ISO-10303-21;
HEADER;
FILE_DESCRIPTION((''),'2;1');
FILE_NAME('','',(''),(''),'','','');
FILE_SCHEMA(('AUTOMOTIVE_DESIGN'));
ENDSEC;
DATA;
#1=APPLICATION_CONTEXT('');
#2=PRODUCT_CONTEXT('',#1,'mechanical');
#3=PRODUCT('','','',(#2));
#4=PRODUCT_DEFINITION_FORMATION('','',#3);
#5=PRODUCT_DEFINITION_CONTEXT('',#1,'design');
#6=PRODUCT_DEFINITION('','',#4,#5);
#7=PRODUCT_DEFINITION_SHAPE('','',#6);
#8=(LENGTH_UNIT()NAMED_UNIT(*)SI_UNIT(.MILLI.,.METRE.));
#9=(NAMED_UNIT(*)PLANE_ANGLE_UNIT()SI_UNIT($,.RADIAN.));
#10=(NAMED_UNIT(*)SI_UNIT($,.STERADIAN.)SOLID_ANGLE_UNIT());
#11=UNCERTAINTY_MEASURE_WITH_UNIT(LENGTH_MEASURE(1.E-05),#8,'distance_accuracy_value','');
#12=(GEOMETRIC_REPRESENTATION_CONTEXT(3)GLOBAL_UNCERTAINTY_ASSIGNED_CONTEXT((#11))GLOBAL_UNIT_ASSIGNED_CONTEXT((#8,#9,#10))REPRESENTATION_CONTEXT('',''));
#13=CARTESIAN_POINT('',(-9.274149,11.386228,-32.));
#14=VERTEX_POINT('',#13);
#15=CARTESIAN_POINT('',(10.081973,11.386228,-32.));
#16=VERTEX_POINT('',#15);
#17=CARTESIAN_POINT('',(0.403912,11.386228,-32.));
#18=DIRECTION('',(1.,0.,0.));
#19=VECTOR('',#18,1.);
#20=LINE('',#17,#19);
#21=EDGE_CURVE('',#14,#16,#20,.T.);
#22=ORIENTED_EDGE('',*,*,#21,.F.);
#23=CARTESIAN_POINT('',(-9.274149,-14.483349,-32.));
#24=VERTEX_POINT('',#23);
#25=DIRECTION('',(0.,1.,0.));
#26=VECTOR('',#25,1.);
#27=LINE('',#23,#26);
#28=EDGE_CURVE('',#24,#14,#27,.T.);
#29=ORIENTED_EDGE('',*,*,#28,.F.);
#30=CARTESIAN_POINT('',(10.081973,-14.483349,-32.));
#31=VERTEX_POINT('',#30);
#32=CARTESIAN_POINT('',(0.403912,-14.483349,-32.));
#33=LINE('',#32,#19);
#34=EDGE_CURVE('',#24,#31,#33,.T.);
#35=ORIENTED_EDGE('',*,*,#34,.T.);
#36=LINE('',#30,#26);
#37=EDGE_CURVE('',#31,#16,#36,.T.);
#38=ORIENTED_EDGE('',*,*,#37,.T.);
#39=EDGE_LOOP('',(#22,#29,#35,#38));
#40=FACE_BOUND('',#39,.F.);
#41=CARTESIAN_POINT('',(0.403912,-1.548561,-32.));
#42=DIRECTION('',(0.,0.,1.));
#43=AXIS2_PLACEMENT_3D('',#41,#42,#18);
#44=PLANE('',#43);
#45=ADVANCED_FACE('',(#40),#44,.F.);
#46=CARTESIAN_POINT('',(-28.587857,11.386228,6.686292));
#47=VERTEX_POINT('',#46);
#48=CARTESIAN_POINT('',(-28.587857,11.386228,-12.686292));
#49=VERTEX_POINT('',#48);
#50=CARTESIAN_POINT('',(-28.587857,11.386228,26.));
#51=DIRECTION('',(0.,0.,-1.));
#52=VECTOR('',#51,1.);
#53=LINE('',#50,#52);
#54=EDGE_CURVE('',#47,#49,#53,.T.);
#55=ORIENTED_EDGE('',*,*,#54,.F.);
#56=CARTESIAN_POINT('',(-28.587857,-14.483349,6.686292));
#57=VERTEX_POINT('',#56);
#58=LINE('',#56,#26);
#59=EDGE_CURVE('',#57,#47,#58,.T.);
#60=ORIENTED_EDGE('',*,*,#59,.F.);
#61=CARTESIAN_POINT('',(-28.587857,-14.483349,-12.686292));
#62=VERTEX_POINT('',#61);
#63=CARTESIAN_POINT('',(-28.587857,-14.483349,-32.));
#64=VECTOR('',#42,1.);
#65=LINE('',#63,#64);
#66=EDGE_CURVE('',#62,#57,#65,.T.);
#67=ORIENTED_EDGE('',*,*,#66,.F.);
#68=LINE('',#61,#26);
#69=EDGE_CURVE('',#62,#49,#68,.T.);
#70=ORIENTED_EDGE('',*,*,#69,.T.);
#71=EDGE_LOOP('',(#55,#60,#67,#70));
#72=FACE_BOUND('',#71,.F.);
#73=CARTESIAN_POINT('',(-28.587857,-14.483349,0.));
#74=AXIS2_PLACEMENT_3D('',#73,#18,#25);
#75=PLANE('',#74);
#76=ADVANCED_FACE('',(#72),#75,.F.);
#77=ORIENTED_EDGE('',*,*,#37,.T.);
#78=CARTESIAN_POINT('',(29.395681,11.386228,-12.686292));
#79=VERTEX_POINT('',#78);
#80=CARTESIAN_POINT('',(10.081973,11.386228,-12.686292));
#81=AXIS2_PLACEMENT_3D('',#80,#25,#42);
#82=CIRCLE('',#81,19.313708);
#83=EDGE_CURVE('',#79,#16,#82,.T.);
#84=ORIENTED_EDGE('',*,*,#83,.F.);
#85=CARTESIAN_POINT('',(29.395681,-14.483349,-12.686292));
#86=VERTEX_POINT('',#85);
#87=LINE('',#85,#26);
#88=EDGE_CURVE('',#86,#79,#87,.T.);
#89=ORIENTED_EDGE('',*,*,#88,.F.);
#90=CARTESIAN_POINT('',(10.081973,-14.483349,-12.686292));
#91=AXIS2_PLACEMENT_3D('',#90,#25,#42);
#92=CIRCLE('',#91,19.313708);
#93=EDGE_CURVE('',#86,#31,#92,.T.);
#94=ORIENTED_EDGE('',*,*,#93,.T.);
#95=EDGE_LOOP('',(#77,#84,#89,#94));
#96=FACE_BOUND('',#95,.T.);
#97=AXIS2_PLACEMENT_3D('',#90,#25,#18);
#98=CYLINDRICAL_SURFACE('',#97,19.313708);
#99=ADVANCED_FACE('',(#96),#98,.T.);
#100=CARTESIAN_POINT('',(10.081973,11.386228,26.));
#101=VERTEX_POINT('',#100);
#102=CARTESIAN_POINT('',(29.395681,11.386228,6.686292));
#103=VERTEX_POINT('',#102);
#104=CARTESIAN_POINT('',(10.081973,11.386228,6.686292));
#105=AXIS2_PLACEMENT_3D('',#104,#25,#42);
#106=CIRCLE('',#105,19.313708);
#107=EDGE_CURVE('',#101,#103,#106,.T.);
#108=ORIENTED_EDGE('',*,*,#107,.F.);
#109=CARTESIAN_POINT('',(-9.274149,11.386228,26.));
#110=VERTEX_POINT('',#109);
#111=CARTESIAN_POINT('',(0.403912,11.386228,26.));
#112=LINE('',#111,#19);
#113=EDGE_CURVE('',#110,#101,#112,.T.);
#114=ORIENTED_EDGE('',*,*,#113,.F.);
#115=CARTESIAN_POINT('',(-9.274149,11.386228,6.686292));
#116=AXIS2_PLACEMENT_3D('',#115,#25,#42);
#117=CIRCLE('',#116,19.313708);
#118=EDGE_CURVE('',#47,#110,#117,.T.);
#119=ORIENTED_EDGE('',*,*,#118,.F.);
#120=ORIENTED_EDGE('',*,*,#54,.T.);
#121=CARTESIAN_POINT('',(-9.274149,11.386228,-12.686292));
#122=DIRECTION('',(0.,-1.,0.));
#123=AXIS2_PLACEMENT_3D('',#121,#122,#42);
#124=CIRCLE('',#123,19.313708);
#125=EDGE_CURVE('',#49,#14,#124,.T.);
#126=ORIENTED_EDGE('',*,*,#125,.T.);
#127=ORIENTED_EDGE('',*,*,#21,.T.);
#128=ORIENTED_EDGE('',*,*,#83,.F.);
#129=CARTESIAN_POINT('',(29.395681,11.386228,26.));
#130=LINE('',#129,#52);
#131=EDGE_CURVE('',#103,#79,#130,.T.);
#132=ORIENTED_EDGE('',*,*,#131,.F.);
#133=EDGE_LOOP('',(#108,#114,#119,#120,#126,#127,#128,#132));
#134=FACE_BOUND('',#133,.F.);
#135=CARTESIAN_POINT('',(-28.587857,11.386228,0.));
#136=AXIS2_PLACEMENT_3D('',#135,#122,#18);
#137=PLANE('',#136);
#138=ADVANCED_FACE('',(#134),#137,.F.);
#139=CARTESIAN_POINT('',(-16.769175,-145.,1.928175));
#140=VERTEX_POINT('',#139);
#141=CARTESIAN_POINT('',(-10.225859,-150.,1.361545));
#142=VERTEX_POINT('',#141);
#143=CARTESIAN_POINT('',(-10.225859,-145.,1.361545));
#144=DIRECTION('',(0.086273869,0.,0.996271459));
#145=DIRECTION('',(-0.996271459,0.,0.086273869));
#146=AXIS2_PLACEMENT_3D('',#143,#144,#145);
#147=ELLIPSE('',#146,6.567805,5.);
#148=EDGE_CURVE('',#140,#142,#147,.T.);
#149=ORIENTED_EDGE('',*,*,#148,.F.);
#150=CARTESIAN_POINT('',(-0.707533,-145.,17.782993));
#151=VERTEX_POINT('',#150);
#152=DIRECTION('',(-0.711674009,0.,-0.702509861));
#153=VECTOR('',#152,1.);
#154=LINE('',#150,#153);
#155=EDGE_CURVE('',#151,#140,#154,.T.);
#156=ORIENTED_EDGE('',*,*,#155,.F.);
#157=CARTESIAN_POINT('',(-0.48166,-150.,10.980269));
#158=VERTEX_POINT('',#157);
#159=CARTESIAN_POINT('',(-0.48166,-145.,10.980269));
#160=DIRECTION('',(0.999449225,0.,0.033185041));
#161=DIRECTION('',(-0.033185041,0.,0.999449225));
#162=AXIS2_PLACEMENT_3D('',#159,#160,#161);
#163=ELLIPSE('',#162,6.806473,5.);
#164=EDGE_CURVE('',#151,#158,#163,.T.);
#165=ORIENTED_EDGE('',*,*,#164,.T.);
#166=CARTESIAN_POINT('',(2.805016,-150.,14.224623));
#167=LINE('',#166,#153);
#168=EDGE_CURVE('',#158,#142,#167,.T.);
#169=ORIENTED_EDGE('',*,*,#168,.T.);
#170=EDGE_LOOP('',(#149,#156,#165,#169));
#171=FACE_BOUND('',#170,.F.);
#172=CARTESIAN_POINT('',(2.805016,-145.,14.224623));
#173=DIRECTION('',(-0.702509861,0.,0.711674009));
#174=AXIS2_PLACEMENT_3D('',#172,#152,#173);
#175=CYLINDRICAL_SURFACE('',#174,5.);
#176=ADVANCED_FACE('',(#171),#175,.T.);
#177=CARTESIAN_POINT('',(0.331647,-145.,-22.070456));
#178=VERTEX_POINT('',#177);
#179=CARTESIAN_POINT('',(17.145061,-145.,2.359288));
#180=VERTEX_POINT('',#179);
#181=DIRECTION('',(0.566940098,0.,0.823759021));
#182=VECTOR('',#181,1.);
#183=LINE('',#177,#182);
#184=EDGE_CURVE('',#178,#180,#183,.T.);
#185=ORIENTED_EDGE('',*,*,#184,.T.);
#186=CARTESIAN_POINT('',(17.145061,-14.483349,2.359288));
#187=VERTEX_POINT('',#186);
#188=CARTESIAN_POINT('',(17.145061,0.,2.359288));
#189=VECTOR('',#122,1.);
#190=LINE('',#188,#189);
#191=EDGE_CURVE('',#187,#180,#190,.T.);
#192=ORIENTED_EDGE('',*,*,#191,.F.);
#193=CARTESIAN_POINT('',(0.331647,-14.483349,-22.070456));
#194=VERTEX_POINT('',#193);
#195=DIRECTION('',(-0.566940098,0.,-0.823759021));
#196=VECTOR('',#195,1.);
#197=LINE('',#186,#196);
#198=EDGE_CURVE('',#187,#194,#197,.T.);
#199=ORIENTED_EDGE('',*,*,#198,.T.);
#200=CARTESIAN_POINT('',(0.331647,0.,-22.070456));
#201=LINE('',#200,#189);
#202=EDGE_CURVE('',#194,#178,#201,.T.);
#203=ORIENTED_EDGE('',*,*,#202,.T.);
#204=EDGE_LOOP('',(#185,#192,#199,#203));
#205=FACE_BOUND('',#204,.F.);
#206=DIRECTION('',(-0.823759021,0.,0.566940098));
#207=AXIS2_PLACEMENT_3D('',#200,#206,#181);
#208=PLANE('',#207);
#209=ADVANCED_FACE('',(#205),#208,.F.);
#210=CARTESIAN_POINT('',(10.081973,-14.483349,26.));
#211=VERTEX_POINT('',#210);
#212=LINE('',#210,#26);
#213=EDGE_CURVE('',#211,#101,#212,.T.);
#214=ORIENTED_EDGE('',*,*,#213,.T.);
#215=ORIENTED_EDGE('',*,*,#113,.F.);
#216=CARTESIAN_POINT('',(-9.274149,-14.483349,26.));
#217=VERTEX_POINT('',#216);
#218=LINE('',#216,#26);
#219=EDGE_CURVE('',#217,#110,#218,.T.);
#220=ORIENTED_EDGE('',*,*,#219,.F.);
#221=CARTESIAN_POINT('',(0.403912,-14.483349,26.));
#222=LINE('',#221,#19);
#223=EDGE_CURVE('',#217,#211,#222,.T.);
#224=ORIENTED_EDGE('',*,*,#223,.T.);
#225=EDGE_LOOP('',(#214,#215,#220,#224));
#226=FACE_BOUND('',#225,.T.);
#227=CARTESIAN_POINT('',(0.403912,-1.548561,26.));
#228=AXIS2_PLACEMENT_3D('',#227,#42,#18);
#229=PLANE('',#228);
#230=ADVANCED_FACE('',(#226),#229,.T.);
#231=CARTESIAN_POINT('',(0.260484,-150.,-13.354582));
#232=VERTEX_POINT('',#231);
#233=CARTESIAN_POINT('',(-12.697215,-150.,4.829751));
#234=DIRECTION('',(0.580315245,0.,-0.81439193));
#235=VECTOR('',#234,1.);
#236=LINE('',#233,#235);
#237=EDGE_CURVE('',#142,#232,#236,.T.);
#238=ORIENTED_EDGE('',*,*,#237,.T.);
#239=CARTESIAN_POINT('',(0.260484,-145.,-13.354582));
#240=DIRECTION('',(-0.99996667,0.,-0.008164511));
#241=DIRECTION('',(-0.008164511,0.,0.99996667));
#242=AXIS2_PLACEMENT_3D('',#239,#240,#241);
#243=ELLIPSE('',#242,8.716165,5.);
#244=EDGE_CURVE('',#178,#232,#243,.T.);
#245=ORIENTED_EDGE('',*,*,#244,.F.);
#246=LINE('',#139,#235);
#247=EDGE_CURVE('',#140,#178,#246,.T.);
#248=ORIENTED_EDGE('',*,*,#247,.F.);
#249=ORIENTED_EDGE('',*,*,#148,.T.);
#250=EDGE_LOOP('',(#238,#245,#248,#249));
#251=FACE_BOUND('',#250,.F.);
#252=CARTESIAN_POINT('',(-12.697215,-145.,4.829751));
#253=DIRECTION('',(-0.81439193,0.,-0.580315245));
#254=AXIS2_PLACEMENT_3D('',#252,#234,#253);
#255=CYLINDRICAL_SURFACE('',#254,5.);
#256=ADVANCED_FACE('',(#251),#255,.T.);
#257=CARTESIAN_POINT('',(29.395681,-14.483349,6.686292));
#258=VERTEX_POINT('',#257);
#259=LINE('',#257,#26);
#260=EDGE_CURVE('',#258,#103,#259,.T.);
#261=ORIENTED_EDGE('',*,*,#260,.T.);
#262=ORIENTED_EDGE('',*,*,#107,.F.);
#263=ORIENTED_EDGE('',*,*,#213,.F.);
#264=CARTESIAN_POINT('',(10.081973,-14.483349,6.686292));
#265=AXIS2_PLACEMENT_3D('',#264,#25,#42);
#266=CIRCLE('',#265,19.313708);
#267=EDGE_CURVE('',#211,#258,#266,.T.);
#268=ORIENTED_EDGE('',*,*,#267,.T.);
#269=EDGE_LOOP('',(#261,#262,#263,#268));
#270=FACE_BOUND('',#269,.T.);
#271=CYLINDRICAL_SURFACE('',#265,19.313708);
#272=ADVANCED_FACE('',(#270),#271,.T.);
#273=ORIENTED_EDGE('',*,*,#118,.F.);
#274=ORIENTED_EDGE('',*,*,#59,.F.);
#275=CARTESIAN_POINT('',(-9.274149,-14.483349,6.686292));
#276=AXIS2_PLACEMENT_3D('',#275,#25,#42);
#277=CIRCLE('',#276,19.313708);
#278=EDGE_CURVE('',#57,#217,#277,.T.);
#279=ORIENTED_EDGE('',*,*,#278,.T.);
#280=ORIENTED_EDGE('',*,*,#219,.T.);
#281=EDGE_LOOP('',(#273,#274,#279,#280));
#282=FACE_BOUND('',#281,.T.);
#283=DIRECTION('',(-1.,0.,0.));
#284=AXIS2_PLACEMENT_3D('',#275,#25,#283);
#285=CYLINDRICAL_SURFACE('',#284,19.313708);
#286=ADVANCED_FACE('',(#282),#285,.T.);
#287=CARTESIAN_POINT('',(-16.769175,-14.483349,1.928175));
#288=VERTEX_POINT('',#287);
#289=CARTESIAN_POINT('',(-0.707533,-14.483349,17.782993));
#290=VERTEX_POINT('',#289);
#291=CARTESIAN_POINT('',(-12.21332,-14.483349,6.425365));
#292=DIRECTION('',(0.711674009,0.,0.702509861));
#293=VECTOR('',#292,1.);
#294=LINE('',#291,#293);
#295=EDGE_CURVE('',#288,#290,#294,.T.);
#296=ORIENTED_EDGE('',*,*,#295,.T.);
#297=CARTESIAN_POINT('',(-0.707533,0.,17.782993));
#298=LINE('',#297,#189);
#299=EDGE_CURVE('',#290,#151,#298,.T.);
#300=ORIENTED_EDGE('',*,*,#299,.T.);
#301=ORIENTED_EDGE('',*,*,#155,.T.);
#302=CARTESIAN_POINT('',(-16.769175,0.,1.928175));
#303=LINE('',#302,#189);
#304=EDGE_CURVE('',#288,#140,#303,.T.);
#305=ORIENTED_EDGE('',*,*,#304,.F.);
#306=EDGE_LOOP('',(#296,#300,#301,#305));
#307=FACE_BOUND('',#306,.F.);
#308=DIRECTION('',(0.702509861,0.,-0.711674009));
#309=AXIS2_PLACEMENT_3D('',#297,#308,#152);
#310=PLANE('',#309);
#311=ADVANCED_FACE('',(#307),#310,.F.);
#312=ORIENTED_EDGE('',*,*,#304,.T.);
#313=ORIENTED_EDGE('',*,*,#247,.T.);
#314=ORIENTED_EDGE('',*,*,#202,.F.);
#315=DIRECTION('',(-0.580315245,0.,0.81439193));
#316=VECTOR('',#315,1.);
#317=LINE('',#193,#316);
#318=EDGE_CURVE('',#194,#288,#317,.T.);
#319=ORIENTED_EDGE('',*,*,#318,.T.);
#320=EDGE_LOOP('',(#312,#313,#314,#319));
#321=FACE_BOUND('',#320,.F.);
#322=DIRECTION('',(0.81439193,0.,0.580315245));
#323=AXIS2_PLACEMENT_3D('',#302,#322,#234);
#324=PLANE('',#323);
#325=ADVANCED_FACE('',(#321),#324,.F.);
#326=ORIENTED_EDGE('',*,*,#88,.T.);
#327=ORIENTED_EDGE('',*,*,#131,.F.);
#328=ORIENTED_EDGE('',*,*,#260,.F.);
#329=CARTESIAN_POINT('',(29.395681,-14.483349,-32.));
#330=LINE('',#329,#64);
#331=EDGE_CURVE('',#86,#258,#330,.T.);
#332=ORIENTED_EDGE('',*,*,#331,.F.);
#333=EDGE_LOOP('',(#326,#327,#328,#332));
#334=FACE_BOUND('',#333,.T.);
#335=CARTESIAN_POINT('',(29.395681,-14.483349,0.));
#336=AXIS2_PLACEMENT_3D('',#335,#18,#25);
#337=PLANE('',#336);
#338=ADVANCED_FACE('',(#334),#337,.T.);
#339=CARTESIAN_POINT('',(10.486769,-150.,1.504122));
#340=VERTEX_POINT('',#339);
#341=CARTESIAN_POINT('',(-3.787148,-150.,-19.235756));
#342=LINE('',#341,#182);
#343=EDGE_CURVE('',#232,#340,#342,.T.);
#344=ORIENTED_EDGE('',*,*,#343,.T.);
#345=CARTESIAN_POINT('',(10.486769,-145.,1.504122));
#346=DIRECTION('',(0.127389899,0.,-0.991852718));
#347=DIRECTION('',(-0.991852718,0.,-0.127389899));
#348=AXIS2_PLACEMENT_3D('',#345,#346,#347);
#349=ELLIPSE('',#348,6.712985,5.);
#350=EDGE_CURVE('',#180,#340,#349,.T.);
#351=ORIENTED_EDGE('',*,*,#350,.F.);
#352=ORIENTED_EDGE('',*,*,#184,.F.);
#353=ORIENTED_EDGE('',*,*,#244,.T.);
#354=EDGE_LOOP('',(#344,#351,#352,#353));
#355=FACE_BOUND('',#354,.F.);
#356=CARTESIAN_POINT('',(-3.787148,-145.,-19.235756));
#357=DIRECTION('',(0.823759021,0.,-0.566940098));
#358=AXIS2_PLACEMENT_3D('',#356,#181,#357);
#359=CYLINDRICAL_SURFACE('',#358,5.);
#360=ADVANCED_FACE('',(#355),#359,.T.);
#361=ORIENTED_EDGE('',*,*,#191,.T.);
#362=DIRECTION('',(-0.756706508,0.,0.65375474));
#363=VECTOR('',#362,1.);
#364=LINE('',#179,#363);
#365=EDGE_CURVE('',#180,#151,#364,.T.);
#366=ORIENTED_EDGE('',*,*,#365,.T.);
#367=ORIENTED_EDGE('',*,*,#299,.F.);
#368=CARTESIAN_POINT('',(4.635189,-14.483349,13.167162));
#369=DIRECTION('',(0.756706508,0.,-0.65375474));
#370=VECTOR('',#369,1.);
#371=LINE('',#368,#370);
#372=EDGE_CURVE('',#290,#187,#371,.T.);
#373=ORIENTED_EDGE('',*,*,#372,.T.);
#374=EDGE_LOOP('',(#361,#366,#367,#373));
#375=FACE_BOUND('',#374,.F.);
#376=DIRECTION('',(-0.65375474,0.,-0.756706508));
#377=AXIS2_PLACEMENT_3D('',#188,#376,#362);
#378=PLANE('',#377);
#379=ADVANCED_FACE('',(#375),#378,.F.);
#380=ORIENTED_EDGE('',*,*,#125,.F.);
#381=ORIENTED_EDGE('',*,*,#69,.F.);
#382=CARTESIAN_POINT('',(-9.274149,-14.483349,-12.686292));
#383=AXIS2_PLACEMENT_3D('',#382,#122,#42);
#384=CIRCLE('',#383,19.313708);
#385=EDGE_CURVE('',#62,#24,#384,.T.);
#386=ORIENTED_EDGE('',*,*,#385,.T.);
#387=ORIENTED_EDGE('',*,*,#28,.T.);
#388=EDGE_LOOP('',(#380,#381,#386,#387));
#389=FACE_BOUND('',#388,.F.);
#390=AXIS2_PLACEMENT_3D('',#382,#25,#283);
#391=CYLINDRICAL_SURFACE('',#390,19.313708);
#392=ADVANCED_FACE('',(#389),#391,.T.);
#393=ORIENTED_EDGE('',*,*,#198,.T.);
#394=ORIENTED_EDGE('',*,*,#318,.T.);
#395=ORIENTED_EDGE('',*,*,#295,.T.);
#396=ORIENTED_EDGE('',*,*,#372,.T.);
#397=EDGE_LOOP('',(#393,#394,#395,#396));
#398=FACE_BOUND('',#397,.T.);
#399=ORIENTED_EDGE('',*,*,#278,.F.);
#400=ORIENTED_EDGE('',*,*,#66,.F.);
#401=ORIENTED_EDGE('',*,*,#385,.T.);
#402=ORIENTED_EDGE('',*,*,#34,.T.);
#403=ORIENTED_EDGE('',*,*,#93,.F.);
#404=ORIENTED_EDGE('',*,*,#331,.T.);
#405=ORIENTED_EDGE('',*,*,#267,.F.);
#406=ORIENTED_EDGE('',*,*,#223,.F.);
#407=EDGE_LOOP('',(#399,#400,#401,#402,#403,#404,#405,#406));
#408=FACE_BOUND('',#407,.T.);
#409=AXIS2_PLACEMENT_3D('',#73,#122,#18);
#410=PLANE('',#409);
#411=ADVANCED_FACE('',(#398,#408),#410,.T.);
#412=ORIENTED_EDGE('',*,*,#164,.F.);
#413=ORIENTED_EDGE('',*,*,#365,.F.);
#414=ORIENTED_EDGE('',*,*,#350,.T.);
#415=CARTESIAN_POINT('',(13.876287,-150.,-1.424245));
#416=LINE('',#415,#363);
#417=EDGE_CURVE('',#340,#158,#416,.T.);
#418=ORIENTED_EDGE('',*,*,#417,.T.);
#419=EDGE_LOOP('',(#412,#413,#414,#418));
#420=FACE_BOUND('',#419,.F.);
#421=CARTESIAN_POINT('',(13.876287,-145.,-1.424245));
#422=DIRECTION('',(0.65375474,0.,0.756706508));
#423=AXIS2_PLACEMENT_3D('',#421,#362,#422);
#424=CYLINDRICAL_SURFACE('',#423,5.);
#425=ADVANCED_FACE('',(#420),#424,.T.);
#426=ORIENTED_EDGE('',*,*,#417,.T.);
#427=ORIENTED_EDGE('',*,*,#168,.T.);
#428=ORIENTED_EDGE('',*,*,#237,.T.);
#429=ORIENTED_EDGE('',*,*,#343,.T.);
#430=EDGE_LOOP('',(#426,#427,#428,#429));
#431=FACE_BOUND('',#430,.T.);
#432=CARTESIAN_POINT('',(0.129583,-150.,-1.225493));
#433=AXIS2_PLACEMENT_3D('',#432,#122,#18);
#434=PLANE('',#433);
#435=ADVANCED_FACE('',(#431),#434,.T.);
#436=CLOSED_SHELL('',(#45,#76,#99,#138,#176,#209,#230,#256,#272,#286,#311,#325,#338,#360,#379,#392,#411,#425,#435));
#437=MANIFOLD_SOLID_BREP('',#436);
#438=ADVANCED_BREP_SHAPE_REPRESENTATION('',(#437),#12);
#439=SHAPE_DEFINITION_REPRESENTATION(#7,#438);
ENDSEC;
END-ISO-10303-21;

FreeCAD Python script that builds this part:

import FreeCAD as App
import Part
import Sketcher

V = App.Vector
Q = App.Units.Quantity


def edges_at(feature, points):
    """Names of the edges that pass closest to the given points."""
    edges = feature.Shape.Edges
    near = lambda p: min(range(len(edges)), key=lambda i: edges[i].distToShape(Part.Vertex(*p))[0])
    return sorted({f"Edge{near(p) + 1}" for p in points})

doc = App.newDocument("Part")
params = doc.addObject("Spreadsheet::Sheet", "Params")
for row, (alias, value) in enumerate([
    ("pad1_length", "150 mm"),
    ("pad2_length", "26 mm"),
    ("pad2_length2", "32 mm"),
    ("fillet_radius", "19.313708 mm"),
    ("fillet2_radius", "5 mm"),
], start=1):
    params.set(f"A{row}", alias)
    params.set(f"B{row}", "=" + value)
    params.setAlias(f"B{row}", alias)

body = doc.addObject("PartDesign::Body", "Body")

# Sketch on XZ plane
sketch1 = body.newObject("Sketcher::SketchObject", "Sketch")
sketch1.AttachmentSupport = (doc.getObject("XZ_Plane"), [""])
sketch1.MapMode = "FlatFace"
sketch1.addGeometry([
    Part.LineSegment(V(-17, 2, 0), V(0, -22, 0)),
    Part.LineSegment(V(0, -22, 0), V(17, 2, 0)),
    Part.LineSegment(V(17, 2, 0), V(-1, 18, 0)),
    Part.LineSegment(V(-1, 18, 0), V(-17, 2, 0)),
], False)
sketch1.addConstraint([
    Sketcher.Constraint("Coincident", 0, 2, 1, 1),
    Sketcher.Constraint("Coincident", 1, 2, 2, 1),
    Sketcher.Constraint("Coincident", 2, 2, 3, 1),
    Sketcher.Constraint("Coincident", 3, 2, 0, 1),
    Sketcher.Constraint("Distance", 0, Q("29.468159 mm")),
    Sketcher.Constraint("Distance", 1, Q("29.656421 mm")),
    Sketcher.Constraint("Distance", 3, Q("22.568819 mm")),
    Sketcher.Constraint("DistanceX", -1, 1, 1, 2, Q("17.145061 mm")),
    Sketcher.Constraint("DistanceX", 2, 2, 0, 2, Q("1.03918 mm")),
    Sketcher.Constraint("DistanceY", 0, 2, 2, 2, Q("39.853449 mm")),
    Sketcher.Constraint("Distance", 2, Q("23.592494 mm")),
    Sketcher.Constraint("DistanceY", 0, 2, -1, 1, Q("22.070456 mm")),
])
pad1 = body.newObject("PartDesign::Pad", "Pad")
pad1.Profile = sketch1
pad1.setExpression("Length", "Params.pad1_length")

# Sketch on XY plane
sketch2 = body.newObject("Sketcher::SketchObject", "Sketch001")
sketch2.AttachmentSupport = (doc.getObject("XY_Plane"), [""])
sketch2.MapMode = "FlatFace"
sketch2.addGeometry([
    Part.LineSegment(V(-29, 11, 0), V(-29, -14, 0)),
    Part.LineSegment(V(-29, -14, 0), V(29, -14, 0)),
    Part.LineSegment(V(29, -14, 0), V(29, 11, 0)),
    Part.LineSegment(V(29, 11, 0), V(-29, 11, 0)),
], False)
sketch2.addConstraint([
    Sketcher.Constraint("Coincident", 0, 2, 1, 1),
    Sketcher.Constraint("Coincident", 1, 2, 2, 1),
    Sketcher.Constraint("Coincident", 2, 2, 3, 1),
    Sketcher.Constraint("Coincident", 3, 2, 0, 1),
    Sketcher.Constraint("Vertical", 0),
    Sketcher.Constraint("Horizontal", 1),
    Sketcher.Constraint("Vertical", 2),
    Sketcher.Constraint("Horizontal", 3),
    Sketcher.Constraint("DistanceX", 1, 1, 1, 2, Q("57.983538 mm")),
    Sketcher.Constraint("DistanceY", 0, 2, 0, 1, Q("25.869577 mm")),
    Sketcher.Constraint("DistanceY", 0, 2, -1, 1, Q("14.483349 mm")),
    Sketcher.Constraint("DistanceX", -1, 1, 1, 2, Q("29.395681 mm")),
])
pad2 = body.newObject("PartDesign::Pad", "Pad001")
pad2.Profile = sketch2
pad2.Type = "TwoLengths"
pad2.setExpression("Length", "Params.pad2_length")
pad2.setExpression("Length2", "Params.pad2_length2")
doc.recompute()

fillet = body.newObject("PartDesign::Fillet", "Fillet")
fillet.Base = (pad2, edges_at(pad2, [
    (-28.588, -1.549, -32),
    (29.396, -1.549, -32),
    (29.396, -1.549, 26),
    (-28.588, -1.549, 26),
]))
fillet.setExpression("Radius", "Params.fillet_radius")
doc.recompute()

fillet2 = body.newObject("PartDesign::Fillet", "Fillet001")
fillet2.Base = (fillet, edges_at(fillet, [
    (8.219, -150, 10.071),
    (8.738, -150, -9.856),
    (-8.738, -150, 9.856),
    (-8.219, -150, -10.071),
]))
fillet2.setExpression("Radius", "Params.fillet2_radius")

doc.recompute()
